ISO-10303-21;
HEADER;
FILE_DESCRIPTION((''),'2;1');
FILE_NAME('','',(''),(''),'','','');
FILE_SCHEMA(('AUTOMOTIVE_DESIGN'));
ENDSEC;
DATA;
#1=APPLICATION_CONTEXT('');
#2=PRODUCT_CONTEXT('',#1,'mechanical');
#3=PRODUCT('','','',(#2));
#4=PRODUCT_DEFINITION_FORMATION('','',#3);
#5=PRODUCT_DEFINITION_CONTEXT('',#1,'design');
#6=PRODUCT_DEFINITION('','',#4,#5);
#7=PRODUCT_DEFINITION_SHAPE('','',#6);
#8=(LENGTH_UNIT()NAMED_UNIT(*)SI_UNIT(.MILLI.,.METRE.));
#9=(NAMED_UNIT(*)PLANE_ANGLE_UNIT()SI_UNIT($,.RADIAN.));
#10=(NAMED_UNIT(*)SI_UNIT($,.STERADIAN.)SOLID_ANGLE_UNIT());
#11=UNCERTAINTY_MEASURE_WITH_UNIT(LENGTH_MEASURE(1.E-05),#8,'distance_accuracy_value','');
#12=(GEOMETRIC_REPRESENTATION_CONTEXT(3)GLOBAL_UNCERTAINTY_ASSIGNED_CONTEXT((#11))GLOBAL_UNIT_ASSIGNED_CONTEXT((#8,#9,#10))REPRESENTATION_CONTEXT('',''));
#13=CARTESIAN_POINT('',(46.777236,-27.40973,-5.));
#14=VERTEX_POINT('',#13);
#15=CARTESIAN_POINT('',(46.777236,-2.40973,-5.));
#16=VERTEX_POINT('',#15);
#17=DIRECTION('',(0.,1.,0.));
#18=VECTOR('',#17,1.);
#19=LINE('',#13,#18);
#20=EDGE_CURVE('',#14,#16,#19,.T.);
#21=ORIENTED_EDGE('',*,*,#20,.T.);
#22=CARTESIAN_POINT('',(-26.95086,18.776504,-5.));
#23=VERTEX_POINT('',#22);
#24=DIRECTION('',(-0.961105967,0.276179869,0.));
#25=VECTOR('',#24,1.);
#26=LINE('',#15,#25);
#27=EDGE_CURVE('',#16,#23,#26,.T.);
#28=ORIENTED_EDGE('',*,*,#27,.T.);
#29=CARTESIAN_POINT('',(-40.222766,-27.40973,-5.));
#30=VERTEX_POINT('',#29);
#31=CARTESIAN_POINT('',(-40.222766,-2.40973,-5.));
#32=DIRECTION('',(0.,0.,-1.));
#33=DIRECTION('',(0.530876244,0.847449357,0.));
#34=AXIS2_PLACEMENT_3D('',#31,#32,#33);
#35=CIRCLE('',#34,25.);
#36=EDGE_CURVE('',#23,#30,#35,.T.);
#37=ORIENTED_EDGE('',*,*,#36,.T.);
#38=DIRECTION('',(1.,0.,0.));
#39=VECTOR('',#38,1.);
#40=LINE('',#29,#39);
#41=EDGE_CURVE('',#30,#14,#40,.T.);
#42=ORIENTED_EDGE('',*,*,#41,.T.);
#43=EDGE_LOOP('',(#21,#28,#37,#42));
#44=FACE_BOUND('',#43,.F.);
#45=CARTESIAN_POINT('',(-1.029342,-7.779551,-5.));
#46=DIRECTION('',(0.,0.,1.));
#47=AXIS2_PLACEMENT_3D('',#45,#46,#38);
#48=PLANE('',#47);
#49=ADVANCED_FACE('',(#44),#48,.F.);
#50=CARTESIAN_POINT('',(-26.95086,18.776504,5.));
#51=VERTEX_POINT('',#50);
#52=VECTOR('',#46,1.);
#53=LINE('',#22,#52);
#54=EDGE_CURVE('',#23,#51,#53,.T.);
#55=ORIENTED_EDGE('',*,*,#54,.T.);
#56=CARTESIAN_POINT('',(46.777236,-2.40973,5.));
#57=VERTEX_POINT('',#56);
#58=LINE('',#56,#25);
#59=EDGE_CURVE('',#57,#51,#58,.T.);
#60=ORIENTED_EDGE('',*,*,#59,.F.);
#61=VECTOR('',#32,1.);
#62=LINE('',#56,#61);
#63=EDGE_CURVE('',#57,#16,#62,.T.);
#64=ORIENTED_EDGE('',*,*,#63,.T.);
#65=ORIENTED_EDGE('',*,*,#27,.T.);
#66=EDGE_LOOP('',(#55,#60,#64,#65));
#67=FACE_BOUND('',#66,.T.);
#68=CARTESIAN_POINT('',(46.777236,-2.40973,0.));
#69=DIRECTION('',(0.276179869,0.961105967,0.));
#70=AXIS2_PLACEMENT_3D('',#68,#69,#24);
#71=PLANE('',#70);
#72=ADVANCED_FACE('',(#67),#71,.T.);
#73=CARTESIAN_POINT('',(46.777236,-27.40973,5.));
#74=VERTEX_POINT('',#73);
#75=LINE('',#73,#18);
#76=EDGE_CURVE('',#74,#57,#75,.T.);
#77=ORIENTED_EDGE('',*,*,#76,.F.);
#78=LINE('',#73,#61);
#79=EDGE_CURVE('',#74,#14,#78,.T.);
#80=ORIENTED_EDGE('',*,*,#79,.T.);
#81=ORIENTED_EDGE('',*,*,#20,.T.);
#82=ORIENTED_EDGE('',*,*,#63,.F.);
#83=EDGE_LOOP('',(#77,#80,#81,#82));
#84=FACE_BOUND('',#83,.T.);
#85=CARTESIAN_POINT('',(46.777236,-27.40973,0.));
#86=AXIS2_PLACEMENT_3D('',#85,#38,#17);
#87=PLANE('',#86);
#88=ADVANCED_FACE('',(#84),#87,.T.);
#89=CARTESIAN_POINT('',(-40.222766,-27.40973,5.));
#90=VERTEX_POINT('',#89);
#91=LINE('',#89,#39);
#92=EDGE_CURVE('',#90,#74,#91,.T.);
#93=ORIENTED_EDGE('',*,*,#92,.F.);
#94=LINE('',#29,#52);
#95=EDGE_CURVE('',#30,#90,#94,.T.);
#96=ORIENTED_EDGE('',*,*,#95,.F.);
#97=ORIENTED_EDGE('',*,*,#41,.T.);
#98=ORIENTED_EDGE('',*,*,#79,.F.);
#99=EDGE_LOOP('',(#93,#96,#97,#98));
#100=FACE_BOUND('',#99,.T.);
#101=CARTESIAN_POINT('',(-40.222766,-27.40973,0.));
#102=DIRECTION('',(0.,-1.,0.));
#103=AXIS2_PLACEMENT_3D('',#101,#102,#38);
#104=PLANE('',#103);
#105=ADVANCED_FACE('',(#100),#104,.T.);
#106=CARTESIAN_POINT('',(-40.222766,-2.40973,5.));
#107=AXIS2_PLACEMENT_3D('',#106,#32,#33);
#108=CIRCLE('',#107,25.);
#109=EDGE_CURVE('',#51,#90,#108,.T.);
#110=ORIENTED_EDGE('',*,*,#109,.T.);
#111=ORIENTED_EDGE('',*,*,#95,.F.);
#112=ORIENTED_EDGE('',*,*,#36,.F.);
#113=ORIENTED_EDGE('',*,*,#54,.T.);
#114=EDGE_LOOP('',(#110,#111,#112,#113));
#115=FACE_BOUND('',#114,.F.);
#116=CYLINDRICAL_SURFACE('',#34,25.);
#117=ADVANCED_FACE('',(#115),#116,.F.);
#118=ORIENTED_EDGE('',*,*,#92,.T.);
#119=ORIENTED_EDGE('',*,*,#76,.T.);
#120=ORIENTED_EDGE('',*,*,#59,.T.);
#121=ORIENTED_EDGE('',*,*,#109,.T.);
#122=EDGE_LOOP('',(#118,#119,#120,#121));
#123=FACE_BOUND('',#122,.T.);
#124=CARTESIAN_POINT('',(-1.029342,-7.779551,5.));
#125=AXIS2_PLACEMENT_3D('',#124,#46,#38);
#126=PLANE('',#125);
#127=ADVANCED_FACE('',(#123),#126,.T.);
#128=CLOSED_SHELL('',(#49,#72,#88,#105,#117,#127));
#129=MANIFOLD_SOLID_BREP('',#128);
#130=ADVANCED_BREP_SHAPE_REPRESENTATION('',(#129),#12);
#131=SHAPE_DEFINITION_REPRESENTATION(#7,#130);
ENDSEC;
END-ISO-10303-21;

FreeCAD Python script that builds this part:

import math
import FreeCAD as App
import Part
import Sketcher

V = App.Vector

doc = App.newDocument("Part")
body = doc.addObject("PartDesign::Body", "Body")

sketch1 = body.newObject("Sketcher::SketchObject", "Sketch")
sketch1.AttachmentSupport = (doc.getObject("XY_Plane"), [""])
sketch1.MapMode = "FlatFace"
sketch1.addGeometry([
    Part.LineSegment(V(47, -2, 0), V(-40, 23, 0)),
    Part.LineSegment(V(-40, 23, 0), V(-40, -27, 0)),
    Part.LineSegment(V(-40, -27, 0), V(47, -27, 0)),
    Part.LineSegment(V(47, -27, 0), V(47, -2, 0)),
], False)
sketch1.addConstraint([
    Sketcher.Constraint("Coincident", 0, 2, 1, 1),
    Sketcher.Constraint("Coincident", 1, 2, 2, 1),
    Sketcher.Constraint("Coincident", 2, 2, 3, 1),
    Sketcher.Constraint("Coincident", 3, 2, 0, 1),
    Sketcher.Constraint("Vertical", 1),
    Sketcher.Constraint("Horizontal", 2),
    Sketcher.Constraint("Vertical", 3),
    Sketcher.Constraint("DistanceX", 2, 1, 2, 2, 87.000002),
    Sketcher.Constraint("DistanceY", 1, 2, 1, 1, 50.0),
    Sketcher.Constraint("DistanceY", 3, 1, 3, 2, 25.0),
    Sketcher.Constraint("DistanceY", -1, 1, 0, 2, 22.59027),
    Sketcher.Constraint("DistanceX", 0, 2, -1, 1, 40.222766),
])
pad1 = body.newObject("PartDesign::Pad", "Pad")
pad1.Profile = sketch1
pad1.Length = 10
pad1.Midplane = True

sketch2 = body.newObject("Sketcher::SketchObject", "Sketch001")
sketch2.AttachmentSupport = (doc.getObject("XY_Plane"), [""])
sketch2.MapMode = "FlatFace"
sketch2.AttachmentOffset = App.Placement(V(0, 0, -5), App.Rotation())
sketch2.addGeometry([
    Part.LineSegment(V(-40, -27, 0), V(-40, 23, 0)),
    Part.LineSegment(V(-40, 23, 0), V(-27, 19, 0)),
    Part.ArcOfCircle(Part.Circle(V(-40, -2, 0), V(0, 0, 1), 25), math.radians(-90), math.radians(58)),
], False)
sketch2.addConstraint([
    Sketcher.Constraint("Coincident", 0, 2, 1, 1),
    Sketcher.Constraint("Coincident", 1, 2, 2, 2),
    Sketcher.Constraint("Coincident", 2, 1, 0, 1),
    Sketcher.Constraint("Vertical", 0),
    Sketcher.Constraint("Vertical", 2, 3, 0, 2),
    Sketcher.Constraint("Radius", 2, 25.0),
    Sketcher.Constraint("DistanceY", 0, 1, 0, 2, 50.0),
    Sketcher.Constraint("DistanceY", 2, 3, -1, 1, 2.40973),
    Sketcher.Constraint("DistanceX", 1, 2, -1, 1, 26.95086),
    Sketcher.Constraint("Distance", 1, 13.808993),
])
pocket1 = body.newObject("PartDesign::Pocket", "Pocket")
pocket1.Profile = sketch2
pocket1.Length = 25
pocket1.Reversed = True

doc.recompute()
